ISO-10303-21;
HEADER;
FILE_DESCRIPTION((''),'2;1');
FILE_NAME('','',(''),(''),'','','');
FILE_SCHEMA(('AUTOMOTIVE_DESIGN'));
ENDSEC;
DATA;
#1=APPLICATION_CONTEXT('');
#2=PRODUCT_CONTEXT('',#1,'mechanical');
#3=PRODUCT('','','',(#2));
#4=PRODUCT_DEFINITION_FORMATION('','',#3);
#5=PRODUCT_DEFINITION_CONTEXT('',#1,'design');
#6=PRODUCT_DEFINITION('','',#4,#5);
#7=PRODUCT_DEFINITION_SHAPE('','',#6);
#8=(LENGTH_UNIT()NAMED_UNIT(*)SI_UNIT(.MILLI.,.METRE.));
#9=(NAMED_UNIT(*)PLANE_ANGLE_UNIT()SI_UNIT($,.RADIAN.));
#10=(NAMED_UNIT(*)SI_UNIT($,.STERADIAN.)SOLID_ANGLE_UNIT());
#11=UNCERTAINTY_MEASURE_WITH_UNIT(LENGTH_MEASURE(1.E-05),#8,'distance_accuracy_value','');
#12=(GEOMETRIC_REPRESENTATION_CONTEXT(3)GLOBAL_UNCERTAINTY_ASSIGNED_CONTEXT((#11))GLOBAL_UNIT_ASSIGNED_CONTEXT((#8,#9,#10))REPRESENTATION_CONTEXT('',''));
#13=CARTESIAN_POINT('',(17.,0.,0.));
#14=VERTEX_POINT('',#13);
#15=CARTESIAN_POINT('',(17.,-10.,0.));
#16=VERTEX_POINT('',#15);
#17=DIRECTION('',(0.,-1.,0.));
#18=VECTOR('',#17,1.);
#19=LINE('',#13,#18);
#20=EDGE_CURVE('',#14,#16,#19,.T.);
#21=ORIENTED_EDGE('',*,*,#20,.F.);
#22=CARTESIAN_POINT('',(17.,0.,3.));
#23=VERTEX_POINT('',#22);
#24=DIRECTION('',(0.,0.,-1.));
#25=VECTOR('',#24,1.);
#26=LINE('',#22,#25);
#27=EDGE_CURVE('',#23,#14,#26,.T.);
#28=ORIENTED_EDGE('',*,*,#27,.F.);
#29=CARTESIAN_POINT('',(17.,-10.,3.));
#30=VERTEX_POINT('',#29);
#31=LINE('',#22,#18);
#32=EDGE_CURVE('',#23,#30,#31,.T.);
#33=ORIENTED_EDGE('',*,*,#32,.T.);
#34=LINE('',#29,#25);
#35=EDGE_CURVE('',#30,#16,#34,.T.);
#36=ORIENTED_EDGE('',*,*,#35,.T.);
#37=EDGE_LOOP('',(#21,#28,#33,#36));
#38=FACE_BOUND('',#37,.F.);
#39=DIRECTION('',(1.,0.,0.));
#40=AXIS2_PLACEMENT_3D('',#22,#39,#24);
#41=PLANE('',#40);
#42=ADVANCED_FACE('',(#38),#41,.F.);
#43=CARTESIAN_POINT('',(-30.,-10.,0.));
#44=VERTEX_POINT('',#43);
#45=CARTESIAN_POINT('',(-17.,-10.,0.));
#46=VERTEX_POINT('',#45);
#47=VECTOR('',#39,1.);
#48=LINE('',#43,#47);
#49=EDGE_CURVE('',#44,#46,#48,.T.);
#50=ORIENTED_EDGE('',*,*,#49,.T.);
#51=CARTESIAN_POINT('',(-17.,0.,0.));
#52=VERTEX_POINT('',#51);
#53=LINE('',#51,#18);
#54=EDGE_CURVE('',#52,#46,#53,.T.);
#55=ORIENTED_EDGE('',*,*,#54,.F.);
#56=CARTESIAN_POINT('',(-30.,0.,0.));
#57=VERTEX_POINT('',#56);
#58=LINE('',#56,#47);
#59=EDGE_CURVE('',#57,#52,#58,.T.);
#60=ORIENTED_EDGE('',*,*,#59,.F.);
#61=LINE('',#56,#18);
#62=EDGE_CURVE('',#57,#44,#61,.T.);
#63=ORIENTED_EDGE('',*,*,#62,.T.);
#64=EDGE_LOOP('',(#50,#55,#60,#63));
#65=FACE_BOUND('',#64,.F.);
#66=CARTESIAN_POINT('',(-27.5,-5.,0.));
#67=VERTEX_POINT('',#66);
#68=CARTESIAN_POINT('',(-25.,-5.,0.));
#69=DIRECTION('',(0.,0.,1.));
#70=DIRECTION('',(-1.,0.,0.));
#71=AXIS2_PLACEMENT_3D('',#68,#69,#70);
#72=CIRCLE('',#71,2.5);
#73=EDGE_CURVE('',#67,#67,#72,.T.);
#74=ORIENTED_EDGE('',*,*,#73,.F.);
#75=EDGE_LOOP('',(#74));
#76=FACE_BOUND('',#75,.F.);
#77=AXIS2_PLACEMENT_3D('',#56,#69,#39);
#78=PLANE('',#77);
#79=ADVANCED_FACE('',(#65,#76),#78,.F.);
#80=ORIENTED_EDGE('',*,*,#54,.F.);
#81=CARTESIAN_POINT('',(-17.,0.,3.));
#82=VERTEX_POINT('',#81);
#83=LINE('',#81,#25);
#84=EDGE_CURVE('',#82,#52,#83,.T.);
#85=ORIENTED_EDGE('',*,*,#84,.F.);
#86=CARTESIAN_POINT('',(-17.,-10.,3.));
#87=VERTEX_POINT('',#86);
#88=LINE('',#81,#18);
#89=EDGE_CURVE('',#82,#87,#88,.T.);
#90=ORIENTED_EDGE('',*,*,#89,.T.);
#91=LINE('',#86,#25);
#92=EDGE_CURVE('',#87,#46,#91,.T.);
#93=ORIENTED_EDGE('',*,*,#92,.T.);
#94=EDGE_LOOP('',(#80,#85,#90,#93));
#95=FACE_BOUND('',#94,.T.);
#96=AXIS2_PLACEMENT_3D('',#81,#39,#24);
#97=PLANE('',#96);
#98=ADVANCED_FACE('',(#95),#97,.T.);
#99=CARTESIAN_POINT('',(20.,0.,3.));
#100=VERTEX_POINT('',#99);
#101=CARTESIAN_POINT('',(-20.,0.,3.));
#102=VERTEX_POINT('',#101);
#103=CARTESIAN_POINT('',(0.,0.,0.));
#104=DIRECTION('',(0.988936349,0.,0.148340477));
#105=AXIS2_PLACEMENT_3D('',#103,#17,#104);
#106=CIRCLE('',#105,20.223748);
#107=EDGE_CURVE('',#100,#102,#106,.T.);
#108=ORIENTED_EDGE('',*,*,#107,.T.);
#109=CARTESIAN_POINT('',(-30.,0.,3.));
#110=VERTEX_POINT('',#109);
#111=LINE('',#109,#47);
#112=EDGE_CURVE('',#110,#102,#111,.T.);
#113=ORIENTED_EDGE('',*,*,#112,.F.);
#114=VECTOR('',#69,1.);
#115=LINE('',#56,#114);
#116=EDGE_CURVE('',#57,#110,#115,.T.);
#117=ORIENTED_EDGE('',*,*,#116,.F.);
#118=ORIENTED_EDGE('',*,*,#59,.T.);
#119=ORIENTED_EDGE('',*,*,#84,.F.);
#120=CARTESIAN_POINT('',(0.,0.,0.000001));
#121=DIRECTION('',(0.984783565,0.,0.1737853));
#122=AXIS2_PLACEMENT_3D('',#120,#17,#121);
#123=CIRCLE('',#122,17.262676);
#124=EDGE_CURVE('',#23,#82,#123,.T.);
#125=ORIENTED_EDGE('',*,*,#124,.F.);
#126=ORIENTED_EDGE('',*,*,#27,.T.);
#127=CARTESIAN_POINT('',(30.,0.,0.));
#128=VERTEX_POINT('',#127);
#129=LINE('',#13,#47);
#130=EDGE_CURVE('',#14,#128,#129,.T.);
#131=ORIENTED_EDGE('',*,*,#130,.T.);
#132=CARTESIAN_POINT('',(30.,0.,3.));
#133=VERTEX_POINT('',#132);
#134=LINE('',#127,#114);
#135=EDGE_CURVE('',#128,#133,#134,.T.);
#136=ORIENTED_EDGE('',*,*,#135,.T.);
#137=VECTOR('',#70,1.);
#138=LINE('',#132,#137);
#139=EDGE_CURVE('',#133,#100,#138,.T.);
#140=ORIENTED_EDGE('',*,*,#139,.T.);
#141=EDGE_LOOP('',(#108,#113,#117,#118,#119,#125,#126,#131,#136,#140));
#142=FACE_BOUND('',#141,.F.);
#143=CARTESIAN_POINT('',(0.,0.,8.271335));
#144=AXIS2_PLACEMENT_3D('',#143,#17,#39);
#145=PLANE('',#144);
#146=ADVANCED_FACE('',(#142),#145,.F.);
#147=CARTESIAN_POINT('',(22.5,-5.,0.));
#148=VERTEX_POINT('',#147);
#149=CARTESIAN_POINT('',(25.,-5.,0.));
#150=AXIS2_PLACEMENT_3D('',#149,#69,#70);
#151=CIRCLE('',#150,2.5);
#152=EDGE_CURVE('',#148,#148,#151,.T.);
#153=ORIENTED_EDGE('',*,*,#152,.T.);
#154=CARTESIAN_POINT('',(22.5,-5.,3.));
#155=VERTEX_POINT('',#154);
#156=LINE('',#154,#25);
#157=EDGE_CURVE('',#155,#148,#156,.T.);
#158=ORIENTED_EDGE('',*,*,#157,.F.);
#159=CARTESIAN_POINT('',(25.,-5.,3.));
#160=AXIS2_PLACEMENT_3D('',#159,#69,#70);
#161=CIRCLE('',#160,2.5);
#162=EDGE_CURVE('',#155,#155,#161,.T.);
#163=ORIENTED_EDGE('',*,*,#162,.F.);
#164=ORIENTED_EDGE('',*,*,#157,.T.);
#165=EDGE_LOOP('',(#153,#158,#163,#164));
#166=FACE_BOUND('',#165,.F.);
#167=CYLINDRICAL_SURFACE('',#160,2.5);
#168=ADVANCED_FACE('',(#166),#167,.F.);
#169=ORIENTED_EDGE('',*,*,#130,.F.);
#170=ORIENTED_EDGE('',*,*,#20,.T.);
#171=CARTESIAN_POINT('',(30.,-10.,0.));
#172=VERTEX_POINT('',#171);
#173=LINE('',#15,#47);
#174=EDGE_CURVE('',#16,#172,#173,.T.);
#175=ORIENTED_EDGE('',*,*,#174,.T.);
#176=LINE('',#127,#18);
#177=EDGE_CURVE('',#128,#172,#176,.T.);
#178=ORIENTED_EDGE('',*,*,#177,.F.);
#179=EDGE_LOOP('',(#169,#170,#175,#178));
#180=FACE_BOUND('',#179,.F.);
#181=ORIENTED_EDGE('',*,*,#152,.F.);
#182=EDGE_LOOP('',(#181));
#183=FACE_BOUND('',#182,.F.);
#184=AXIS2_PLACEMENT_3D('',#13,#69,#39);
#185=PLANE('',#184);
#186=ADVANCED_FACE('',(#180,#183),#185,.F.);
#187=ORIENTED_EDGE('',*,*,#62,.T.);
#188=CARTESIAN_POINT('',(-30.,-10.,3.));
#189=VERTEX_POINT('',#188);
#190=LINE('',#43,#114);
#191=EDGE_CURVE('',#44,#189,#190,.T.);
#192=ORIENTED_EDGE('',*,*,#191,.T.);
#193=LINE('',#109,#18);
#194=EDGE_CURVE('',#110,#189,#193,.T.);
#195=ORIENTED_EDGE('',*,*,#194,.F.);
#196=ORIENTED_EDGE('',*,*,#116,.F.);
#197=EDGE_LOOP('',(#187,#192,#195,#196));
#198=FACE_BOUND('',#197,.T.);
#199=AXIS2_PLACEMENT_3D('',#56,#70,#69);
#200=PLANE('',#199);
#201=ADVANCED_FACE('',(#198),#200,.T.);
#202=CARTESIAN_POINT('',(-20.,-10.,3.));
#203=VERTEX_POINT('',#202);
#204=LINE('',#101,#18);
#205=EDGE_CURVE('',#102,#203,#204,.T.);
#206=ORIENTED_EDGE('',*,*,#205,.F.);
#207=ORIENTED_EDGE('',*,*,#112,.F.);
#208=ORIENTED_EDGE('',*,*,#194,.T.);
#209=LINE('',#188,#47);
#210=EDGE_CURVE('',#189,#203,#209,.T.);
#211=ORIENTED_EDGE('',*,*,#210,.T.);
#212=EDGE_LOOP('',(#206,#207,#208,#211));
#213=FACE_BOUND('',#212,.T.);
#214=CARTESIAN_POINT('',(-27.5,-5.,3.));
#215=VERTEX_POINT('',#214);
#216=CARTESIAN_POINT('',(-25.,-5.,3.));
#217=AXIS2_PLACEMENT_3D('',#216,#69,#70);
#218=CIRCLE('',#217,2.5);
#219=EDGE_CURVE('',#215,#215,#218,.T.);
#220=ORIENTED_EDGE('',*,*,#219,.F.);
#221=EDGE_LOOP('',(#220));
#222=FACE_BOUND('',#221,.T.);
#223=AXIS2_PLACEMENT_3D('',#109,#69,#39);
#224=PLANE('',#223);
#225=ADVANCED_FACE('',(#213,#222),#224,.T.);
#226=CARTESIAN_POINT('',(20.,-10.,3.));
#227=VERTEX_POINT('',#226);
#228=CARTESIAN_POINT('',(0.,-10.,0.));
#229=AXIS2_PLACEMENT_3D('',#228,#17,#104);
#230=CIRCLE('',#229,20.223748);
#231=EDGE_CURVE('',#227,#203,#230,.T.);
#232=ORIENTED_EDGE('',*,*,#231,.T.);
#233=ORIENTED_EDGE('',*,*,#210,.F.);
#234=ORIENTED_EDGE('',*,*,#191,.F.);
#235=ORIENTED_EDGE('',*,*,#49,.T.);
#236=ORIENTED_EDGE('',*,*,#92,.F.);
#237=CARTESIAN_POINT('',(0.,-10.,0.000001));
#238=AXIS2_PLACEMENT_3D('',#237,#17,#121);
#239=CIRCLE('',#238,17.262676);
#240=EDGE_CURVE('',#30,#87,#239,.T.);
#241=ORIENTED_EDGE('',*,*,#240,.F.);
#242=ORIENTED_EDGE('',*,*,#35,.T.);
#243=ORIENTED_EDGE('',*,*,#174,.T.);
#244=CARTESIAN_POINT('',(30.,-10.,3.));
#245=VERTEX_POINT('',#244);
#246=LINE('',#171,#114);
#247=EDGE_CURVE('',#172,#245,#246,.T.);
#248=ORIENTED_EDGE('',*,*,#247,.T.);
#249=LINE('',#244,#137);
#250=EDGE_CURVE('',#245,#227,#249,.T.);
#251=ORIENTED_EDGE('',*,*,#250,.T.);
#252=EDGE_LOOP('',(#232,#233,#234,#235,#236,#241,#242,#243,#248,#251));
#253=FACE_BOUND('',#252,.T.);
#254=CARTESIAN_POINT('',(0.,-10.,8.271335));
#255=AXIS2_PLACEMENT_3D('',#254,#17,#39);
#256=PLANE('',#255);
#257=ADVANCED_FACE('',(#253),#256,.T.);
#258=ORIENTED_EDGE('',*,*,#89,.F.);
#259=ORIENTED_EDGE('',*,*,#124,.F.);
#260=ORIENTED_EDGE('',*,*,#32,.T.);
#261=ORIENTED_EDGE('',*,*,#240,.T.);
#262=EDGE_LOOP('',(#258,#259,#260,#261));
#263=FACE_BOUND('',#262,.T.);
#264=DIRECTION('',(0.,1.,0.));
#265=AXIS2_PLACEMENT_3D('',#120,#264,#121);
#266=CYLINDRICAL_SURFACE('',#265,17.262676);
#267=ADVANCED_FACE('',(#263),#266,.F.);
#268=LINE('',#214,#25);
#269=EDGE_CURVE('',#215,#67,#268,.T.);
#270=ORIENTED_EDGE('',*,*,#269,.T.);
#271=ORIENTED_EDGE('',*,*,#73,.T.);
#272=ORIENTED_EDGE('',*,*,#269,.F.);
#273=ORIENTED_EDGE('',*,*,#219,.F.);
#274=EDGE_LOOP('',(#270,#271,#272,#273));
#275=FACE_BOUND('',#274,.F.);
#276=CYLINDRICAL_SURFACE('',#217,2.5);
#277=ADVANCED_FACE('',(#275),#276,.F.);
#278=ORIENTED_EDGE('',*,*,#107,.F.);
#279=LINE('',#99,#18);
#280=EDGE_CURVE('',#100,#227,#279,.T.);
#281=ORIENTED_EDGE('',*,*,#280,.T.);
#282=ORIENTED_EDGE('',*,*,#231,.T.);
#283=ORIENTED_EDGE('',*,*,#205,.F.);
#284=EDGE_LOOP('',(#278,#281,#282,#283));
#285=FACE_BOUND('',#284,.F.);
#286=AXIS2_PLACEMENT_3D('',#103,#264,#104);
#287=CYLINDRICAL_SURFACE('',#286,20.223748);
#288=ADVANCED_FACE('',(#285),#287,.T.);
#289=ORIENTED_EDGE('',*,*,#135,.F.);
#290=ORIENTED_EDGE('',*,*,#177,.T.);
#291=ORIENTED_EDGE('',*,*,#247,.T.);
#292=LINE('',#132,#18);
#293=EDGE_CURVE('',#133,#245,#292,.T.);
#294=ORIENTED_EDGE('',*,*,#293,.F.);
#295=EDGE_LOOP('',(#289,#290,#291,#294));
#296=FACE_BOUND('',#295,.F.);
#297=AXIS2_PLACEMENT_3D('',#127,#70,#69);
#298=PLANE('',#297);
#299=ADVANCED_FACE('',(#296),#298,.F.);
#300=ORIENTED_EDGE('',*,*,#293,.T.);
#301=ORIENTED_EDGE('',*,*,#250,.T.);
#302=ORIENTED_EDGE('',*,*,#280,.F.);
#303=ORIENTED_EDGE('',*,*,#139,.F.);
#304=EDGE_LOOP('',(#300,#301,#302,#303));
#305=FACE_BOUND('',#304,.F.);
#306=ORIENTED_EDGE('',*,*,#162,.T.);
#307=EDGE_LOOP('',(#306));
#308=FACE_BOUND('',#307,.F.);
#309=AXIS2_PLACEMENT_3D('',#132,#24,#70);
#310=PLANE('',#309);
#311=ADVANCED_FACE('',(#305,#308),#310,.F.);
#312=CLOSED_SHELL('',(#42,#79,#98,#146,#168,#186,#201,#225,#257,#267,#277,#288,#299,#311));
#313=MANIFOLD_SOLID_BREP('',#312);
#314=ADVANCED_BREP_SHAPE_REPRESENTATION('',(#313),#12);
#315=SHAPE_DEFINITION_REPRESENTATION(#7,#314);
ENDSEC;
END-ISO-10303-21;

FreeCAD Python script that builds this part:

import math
import FreeCAD as App
import Part
import Sketcher

V = App.Vector
Q = App.Units.Quantity

doc = App.newDocument("Part")
params = doc.addObject("Spreadsheet::Sheet", "Params")
for row, (alias, value) in enumerate([
    ("sketch1_width", "13 mm"),
    ("sketch1_width2", "10 mm"),
    ("sketch1_height", "3 mm"),
    ("pad1_length", "10 mm"),
    ("sketch2_diameter", "5 mm"),
], start=1):
    params.set(f"A{row}", alias)
    params.set(f"B{row}", "=" + value)
    params.setAlias(f"B{row}", alias)

body = doc.addObject("PartDesign::Body", "Body")

sketch1 = body.newObject("Sketcher::SketchObject", "Sketch")
sketch1.AttachmentSupport = (doc.getObject("XZ_Plane"), [""])
sketch1.MapMode = "FlatFace"
sketch1.addGeometry(Part.LineSegment(V(-30, 0, 0), V(-17, 0, 0)), False)
sketch1.addGeometry(Part.LineSegment(V(-17, 0, 0), V(-17, 3, 0)), False)
sketch1.addGeometry(Part.ArcOfCircle(Part.Circle(V(0, 0.000001, 0), V(0, 0, 1), 17.262676), math.radians(10.007978), math.radians(169.992022)), False)
sketch1.addGeometry(Part.LineSegment(V(17, 3, 0), V(17, 0, 0)), False)
sketch1.addGeometry(Part.LineSegment(V(17, 0, 0), V(30, 0, 0)), False)
sketch1.addGeometry(Part.LineSegment(V(30, 0, 0), V(30, 3, 0)), False)
sketch1.addGeometry(Part.LineSegment(V(30, 3, 0), V(20, 3, 0)), False)
sketch1.addGeometry(Part.ArcOfCircle(Part.Circle(V(0, 0, 0), V(0, 0, 1), 20.223748), math.radians(8.530767), math.radians(171.469233)), False)
sketch1.addGeometry(Part.LineSegment(V(-20, 3, 0), V(-30, 3, 0)), False)
sketch1.addGeometry(Part.LineSegment(V(-30, 3, 0), V(-30, 0, 0)), False)
sketch1.addConstraint(Sketcher.Constraint("Coincident", 0, 2, 1, 1))
sketch1.addConstraint(Sketcher.Constraint("Coincident", 1, 2, 2, 2))
sketch1.addConstraint(Sketcher.Constraint("Coincident", 2, 1, 3, 1))
sketch1.addConstraint(Sketcher.Constraint("Coincident", 3, 2, 4, 1))
sketch1.addConstraint(Sketcher.Constraint("Coincident", 4, 2, 5, 1))
sketch1.addConstraint(Sketcher.Constraint("Coincident", 5, 2, 6, 1))
sketch1.addConstraint(Sketcher.Constraint("Coincident", 6, 2, 7, 1))
sketch1.addConstraint(Sketcher.Constraint("Coincident", 7, 2, 8, 1))
sketch1.addConstraint(Sketcher.Constraint("Coincident", 8, 2, 9, 1))
sketch1.addConstraint(Sketcher.Constraint("Coincident", 9, 2, 0, 1))
sketch1.addConstraint(Sketcher.Constraint("Horizontal", 0))
sketch1.addConstraint(Sketcher.Constraint("Vertical", 1))
sketch1.addConstraint(Sketcher.Constraint("Vertical", 3))
sketch1.addConstraint(Sketcher.Constraint("Horizontal", 4))
sketch1.addConstraint(Sketcher.Constraint("Vertical", 5))
sketch1.addConstraint(Sketcher.Constraint("Horizontal", 6))
sketch1.addConstraint(Sketcher.Constraint("Horizontal", 8))
sketch1.addConstraint(Sketcher.Constraint("Vertical", 9))
sketch1.addConstraint(Sketcher.Constraint("Coincident", 2, 3, -1, 1))
sketch1.addConstraint(Sketcher.Constraint("Coincident", 7, 3, -1, 1))
sketch1.addConstraint(Sketcher.Constraint("Symmetric", 0, 2, 3, 2, -1, 1))
sketch1.addConstraint(Sketcher.Constraint("Symmetric", 5, 2, 8, 2, -2))
sketch1.addConstraint(Sketcher.Constraint("PointOnObject", 0, 2, -1))
sketch1.addConstraint(Sketcher.Constraint("Horizontal", 2, 1, 5, 2))
sketch1.addConstraint(Sketcher.Constraint("DistanceX", 0, 1, 0, 2, Q("13 mm")))
sketch1.addConstraint(Sketcher.Constraint("DistanceX", 6, 2, 6, 1, Q("10 mm")))
sketch1.addConstraint(Sketcher.Constraint("DistanceY", 1, 1, 1, 2, Q("3 mm")))
sketch1.addConstraint(Sketcher.Constraint("DistanceX", 0, 2, -1, 1, Q("17 mm")))
sketch1.setExpression("Constraints[24]", "Params.sketch1_width")
sketch1.setExpression("Constraints[25]", "Params.sketch1_width2")
sketch1.setExpression("Constraints[26]", "Params.sketch1_height")
pad1 = body.newObject("PartDesign::Pad", "Pad")
pad1.Profile = sketch1
pad1.setExpression("Length", "Params.pad1_length")

sketch2 = body.newObject("Sketcher::SketchObject", "Sketch001")
sketch2.AttachmentSupport = (doc.getObject("XY_Plane"), [""])
sketch2.MapMode = "FlatFace"
sketch2.AttachmentOffset = App.Placement(V(0, 0, 3), App.Rotation())
sketch2.addGeometry(Part.Circle(V(25, -5, 0), V(0, 0, 1), 2.5), False)
sketch2.addGeometry(Part.Circle(V(-25, -5, 0), V(0, 0, 1), 2.5), False)
sketch2.addConstraint(Sketcher.Constraint("Equal", 0, 1))
sketch2.addConstraint(Sketcher.Constraint("Symmetric", 0, 3, 1, 3, -2))
sketch2.addConstraint(Sketcher.Constraint("Diameter", 0, Q("5 mm")))
sketch2.addConstraint(Sketcher.Constraint("DistanceX", -1, 1, 0, 3, Q("25 mm")))
sketch2.addConstraint(Sketcher.Constraint("DistanceY", 0, 3, -1, 1, Q("5 mm")))
sketch2.setExpression("Constraints[2]", "Params.sketch2_diameter")
pocket1 = body.newObject("PartDesign::Pocket", "Pocket")
pocket1.Profile = sketch2
pocket1.Type = "ThroughAll"

doc.recompute()
